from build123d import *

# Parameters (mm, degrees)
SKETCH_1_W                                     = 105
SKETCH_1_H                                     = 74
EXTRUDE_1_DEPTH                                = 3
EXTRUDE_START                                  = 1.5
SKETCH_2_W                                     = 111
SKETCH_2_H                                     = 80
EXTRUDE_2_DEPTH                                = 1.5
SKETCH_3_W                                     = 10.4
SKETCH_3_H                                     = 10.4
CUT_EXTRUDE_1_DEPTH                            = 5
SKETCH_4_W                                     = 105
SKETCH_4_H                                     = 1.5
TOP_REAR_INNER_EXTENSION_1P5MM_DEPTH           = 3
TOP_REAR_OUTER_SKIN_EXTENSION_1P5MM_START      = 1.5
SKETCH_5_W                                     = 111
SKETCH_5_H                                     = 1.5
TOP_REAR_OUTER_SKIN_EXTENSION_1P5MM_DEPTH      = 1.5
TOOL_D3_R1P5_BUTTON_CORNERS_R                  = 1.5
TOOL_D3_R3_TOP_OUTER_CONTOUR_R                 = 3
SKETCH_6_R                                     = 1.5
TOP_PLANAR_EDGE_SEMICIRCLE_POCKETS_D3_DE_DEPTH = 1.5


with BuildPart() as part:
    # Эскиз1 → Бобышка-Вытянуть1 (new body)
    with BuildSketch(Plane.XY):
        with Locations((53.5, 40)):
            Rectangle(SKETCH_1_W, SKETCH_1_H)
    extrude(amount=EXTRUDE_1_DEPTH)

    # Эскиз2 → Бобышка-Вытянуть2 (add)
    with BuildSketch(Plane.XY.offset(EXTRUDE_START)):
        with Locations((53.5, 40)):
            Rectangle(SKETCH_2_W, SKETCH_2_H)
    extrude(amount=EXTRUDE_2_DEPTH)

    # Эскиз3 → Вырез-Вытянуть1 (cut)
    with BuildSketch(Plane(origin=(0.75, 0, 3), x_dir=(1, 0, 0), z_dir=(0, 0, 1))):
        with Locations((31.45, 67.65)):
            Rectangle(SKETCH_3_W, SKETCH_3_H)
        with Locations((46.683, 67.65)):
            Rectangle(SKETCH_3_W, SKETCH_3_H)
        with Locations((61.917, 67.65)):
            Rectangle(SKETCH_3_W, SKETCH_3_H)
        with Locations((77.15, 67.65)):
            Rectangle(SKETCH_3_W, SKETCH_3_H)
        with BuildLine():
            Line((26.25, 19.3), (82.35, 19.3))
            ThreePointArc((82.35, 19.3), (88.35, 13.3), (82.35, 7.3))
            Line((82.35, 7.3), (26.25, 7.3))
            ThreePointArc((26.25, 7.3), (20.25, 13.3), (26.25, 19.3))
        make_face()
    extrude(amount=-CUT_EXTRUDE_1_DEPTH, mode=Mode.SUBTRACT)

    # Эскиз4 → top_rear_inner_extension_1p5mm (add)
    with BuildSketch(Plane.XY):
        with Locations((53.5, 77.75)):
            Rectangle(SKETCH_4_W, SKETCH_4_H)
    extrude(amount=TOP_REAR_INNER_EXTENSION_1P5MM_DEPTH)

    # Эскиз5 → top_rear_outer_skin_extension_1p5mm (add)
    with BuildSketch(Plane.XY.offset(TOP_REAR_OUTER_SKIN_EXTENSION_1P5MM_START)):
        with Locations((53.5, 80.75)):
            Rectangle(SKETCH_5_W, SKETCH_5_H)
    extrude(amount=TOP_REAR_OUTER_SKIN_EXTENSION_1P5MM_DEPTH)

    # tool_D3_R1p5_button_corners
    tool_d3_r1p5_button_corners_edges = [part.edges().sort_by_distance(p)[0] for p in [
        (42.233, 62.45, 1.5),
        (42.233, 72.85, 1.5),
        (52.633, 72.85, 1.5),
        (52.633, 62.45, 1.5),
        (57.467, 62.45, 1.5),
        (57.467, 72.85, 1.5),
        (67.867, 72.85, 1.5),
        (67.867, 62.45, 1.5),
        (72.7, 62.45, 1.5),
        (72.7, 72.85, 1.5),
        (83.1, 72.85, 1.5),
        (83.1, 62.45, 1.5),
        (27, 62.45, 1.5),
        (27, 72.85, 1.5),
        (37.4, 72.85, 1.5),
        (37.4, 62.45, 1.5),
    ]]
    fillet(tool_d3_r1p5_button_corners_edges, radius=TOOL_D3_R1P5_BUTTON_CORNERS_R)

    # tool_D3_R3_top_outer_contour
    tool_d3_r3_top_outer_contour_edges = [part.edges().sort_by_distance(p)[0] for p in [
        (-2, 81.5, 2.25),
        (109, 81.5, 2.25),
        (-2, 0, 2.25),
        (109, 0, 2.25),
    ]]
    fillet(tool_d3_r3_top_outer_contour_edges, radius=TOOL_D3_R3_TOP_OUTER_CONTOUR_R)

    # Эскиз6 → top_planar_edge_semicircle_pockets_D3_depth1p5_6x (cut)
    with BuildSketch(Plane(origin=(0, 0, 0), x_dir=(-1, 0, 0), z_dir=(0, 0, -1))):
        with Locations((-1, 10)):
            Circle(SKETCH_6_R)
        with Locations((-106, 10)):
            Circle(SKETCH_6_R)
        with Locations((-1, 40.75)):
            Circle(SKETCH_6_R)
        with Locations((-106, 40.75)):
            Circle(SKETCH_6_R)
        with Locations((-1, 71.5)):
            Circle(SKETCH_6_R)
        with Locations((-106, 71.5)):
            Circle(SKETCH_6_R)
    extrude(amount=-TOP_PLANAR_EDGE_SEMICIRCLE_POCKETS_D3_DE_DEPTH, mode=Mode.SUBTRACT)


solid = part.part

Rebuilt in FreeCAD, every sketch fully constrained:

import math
import FreeCAD as App
import Part
import Sketcher
from FreeCAD import Vector
Q = App.Units.Quantity


def edges_at(feature, points):
    """Names of the edges that pass closest to the given points."""
    edges = feature.Shape.Edges
    near = lambda p: min(range(len(edges)), key=lambda i: edges[i].distToShape(Part.Vertex(*p))[0])
    return sorted({f"Edge{near(p) + 1}" for p in points})


def add_polygon(sketch, points):
    """Adds a closed chain of lines whose ends are joined by coincident constraints."""
    first, n = sketch.GeometryCount, len(points)
    for a, b in zip(points, points[1:] + points[:1]):
        sketch.addGeometry(Part.LineSegment(App.Vector(*a, 0), App.Vector(*b, 0)), False)
    for i in range(n):
        sketch.addConstraint(Sketcher.Constraint("Coincident", first + i, 2, first + (i + 1) % n, 1))

doc = App.newDocument("Part")
body = doc.addObject("PartDesign::Body", "Body")

# Sketch on XY plane
sketch1 = body.newObject("Sketcher::SketchObject", "Sketch")
sketch1.AttachmentSupport = (doc.getObject("XY_Plane"), [""])
sketch1.MapMode = "FlatFace"
add_polygon(sketch1, [(1, 77), (1, 3), (106, 3), (106, 77)])  # lines 0-3
sketch1.addConstraint(Sketcher.Constraint("Vertical", 0))
sketch1.addConstraint(Sketcher.Constraint("Horizontal", 1))
sketch1.addConstraint(Sketcher.Constraint("Vertical", 2))
sketch1.addConstraint(Sketcher.Constraint("Horizontal", 3))
sketch1.addConstraint(Sketcher.Constraint("DistanceX", 1, 1, 1, 2, Q("105 mm")))
sketch1.addConstraint(Sketcher.Constraint("DistanceY", 0, 2, 0, 1, Q("74 mm")))
sketch1.addConstraint(Sketcher.Constraint("DistanceX", -1, 1, 0, 2, Q("1 mm")))
sketch1.addConstraint(Sketcher.Constraint("DistanceY", -1, 1, 0, 2, Q("3 mm")))
pad1 = body.newObject("PartDesign::Pad", "Pad")
pad1.Profile = sketch1
pad1.Length = 3

# Sketch on XY plane
sketch2 = body.newObject("Sketcher::SketchObject", "Sketch001")
sketch2.AttachmentSupport = (doc.getObject("XY_Plane"), [""])
sketch2.MapMode = "FlatFace"
sketch2.AttachmentOffset = App.Placement(Vector(0, 0, 1.5), App.Rotation())
add_polygon(sketch2, [(-2, 80), (-2, 0), (109, 0), (109, 80)])  # lines 0-3
sketch2.addConstraint(Sketcher.Constraint("Vertical", 0))
sketch2.addConstraint(Sketcher.Constraint("Horizontal", 1))
sketch2.addConstraint(Sketcher.Constraint("Vertical", 2))
sketch2.addConstraint(Sketcher.Constraint("Horizontal", 3))
sketch2.addConstraint(Sketcher.Constraint("PointOnObject", 0, 2, -1))
sketch2.addConstraint(Sketcher.Constraint("DistanceX", 1, 1, 1, 2, Q("111 mm")))
sketch2.addConstraint(Sketcher.Constraint("DistanceY", 0, 2, 0, 1, Q("80 mm")))
sketch2.addConstraint(Sketcher.Constraint("DistanceX", 0, 2, -1, 1, Q("2 mm")))
pad2 = body.newObject("PartDesign::Pad", "Pad001")
pad2.Profile = sketch2
pad2.Length = 1.5

# Sketch on XY plane
sketch3 = body.newObject("Sketcher::SketchObject", "Sketch002")
sketch3.AttachmentSupport = (doc.getObject("XY_Plane"), [""])
sketch3.MapMode = "FlatFace"
sketch3.AttachmentOffset = App.Placement(Vector(0, 0, 3), App.Rotation())
add_polygon(sketch3, [(27, 73), (27, 62), (37, 62), (37, 73)])  # lines 0-3
add_polygon(sketch3, [(42, 73), (42, 62), (53, 62), (53, 73)])  # lines 4-7
add_polygon(sketch3, [(57, 73), (57, 62), (68, 62), (68, 73)])  # lines 8-11
add_polygon(sketch3, [(73, 73), (73, 62), (83, 62), (83, 73)])  # lines 12-15
sketch3.addGeometry(Part.LineSegment(Vector(83, 19, 0), Vector(27, 19, 0)), False)  # 16
sketch3.addGeometry(Part.ArcOfCircle(Part.Circle(Vector(27, 13, 0), Vector(0, 0, 1), 6), math.radians(90), math.radians(270)), False)  # 17
sketch3.addGeometry(Part.LineSegment(Vector(27, 7, 0), Vector(83, 7, 0)), False)  # 18
sketch3.addGeometry(Part.ArcOfCircle(Part.Circle(Vector(83, 13, 0), Vector(0, 0, 1), 6), math.radians(-90), math.radians(90)), False)  # 19
sketch3.addConstraint(Sketcher.Constraint("Tangent", 16, 2, 17, 1))
sketch3.addConstraint(Sketcher.Constraint("Tangent", 17, 2, 18, 1))
sketch3.addConstraint(Sketcher.Constraint("Tangent", 18, 2, 19, 1))
sketch3.addConstraint(Sketcher.Constraint("Tangent", 19, 2, 16, 1))
sketch3.addConstraint(Sketcher.Constraint("Vertical", 0))
sketch3.addConstraint(Sketcher.Constraint("Horizontal", 1))
sketch3.addConstraint(Sketcher.Constraint("Vertical", 2))
sketch3.addConstraint(Sketcher.Constraint("Horizontal", 3))
sketch3.addConstraint(Sketcher.Constraint("Vertical", 4))
sketch3.addConstraint(Sketcher.Constraint("Horizontal", 5))
sketch3.addConstraint(Sketcher.Constraint("Vertical", 6))
sketch3.addConstraint(Sketcher.Constraint("Horizontal", 7))
sketch3.addConstraint(Sketcher.Constraint("Vertical", 8))
sketch3.addConstraint(Sketcher.Constraint("Horizontal", 9))
sketch3.addConstraint(Sketcher.Constraint("Vertical", 10))
sketch3.addConstraint(Sketcher.Constraint("Horizontal", 11))
sketch3.addConstraint(Sketcher.Constraint("Vertical", 12))
sketch3.addConstraint(Sketcher.Constraint("Horizontal", 13))
sketch3.addConstraint(Sketcher.Constraint("Vertical", 14))
sketch3.addConstraint(Sketcher.Constraint("Horizontal", 15))
sketch3.addConstraint(Sketcher.Constraint("Horizontal", 16))
sketch3.addConstraint(Sketcher.Constraint("Horizontal", 18))
sketch3.addConstraint(Sketcher.Constraint("Horizontal", 1, 2, 4, 2))
sketch3.addConstraint(Sketcher.Constraint("Horizontal", 3, 2, 6, 2))
sketch3.addConstraint(Sketcher.Constraint("Horizontal", 5, 2, 8, 2))
sketch3.addConstraint(Sketcher.Constraint("Horizontal", 7, 2, 10, 2))
sketch3.addConstraint(Sketcher.Constraint("Horizontal", 9, 2, 12, 2))
sketch3.addConstraint(Sketcher.Constraint("Horizontal", 11, 2, 14, 2))
sketch3.addConstraint(Sketcher.Constraint("Vertical", 17, 3, 0, 2))
sketch3.addConstraint(Sketcher.Constraint("Vertical", 19, 3, 13, 2))
sketch3.addConstraint(Sketcher.Constraint("Equal", 3, 5))
sketch3.addConstraint(Sketcher.Constraint("Equal", 7, 9))
sketch3.addConstraint(Sketcher.Constraint("Equal", 11, 13))
sketch3.addConstraint(Sketcher.Constraint("Equal", 15, 0))
sketch3.addConstraint(Sketcher.Constraint("Radius", 17, Q("6 mm")))
sketch3.addConstraint(Sketcher.Constraint("DistanceX", 1, 1, 1, 2, Q("10.4 mm")))
sketch3.addConstraint(Sketcher.Constraint("DistanceX", 16, 2, 16, 1, Q("56.1 mm")))
sketch3.addConstraint(Sketcher.Constraint("DistanceX", -1, 1, 17, 3, Q("27 mm")))
sketch3.addConstraint(Sketcher.Constraint("DistanceY", -1, 1, 17, 3, Q("13.3 mm")))
sketch3.addConstraint(Sketcher.Constraint("DistanceY", -1, 1, 0, 2, Q("62.45 mm")))
sketch3.addConstraint(Sketcher.Constraint("DistanceX", -1, 1, 4, 2, Q("42.233 mm")))
sketch3.addConstraint(Sketcher.Constraint("DistanceX", -1, 1, 8, 2, Q("57.467 mm")))
pocket1 = body.newObject("PartDesign::Pocket", "Pocket")
pocket1.Profile = sketch3
pocket1.Length = 5

# Sketch on XY plane
sketch4 = body.newObject("Sketcher::SketchObject", "Sketch003")
sketch4.AttachmentSupport = (doc.getObject("XY_Plane"), [""])
sketch4.MapMode = "FlatFace"
add_polygon(sketch4, [(1, 78.5), (1, 77), (106, 77), (106, 78.5)])  # lines 0-3
sketch4.addConstraint(Sketcher.Constraint("Vertical", 0))
sketch4.addConstraint(Sketcher.Constraint("Horizontal", 1))
sketch4.addConstraint(Sketcher.Constraint("Vertical", 2))
sketch4.addConstraint(Sketcher.Constraint("Horizontal", 3))
sketch4.addConstraint(Sketcher.Constraint("DistanceX", 1, 1, 1, 2, Q("105 mm")))
sketch4.addConstraint(Sketcher.Constraint("DistanceY", 0, 2, 0, 1, Q("1.5 mm")))
sketch4.addConstraint(Sketcher.Constraint("DistanceX", -1, 1, 0, 2, Q("1 mm")))
sketch4.addConstraint(Sketcher.Constraint("DistanceY", -1, 1, 0, 2, Q("77 mm")))
pad3 = body.newObject("PartDesign::Pad", "Pad002")
pad3.Profile = sketch4
pad3.Length = 3

# Sketch on XY plane
sketch5 = body.newObject("Sketcher::SketchObject", "Sketch004")
sketch5.AttachmentSupport = (doc.getObject("XY_Plane"), [""])
sketch5.MapMode = "FlatFace"
sketch5.AttachmentOffset = App.Placement(Vector(0, 0, 1.5), App.Rotation())
add_polygon(sketch5, [(-2, 81.5), (-2, 80), (109, 80), (109, 81.5)])  # lines 0-3
sketch5.addConstraint(Sketcher.Constraint("Vertical", 0))
sketch5.addConstraint(Sketcher.Constraint("Horizontal", 1))
sketch5.addConstraint(Sketcher.Constraint("Vertical", 2))
sketch5.addConstraint(Sketcher.Constraint("Horizontal", 3))
sketch5.addConstraint(Sketcher.Constraint("DistanceX", 1, 1, 1, 2, Q("111 mm")))
sketch5.addConstraint(Sketcher.Constraint("DistanceY", 0, 2, 0, 1, Q("1.5 mm")))
sketch5.addConstraint(Sketcher.Constraint("DistanceX", 0, 2, -1, 1, Q("2 mm")))
sketch5.addConstraint(Sketcher.Constraint("DistanceY", -1, 1, 0, 2, Q("80 mm")))
pad4 = body.newObject("PartDesign::Pad", "Pad003")
pad4.Profile = sketch5
pad4.Length = 1.5
doc.recompute()

fillet = body.newObject("PartDesign::Fillet", "Fillet")
fillet.Base = (pad4, edges_at(pad4, [
    (42.233, 62.45, 1.5),
    (42.233, 72.85, 1.5),
    (52.633, 72.85, 1.5),
    (52.633, 62.45, 1.5),
    (57.467, 62.45, 1.5),
    (57.467, 72.85, 1.5),
    (67.867, 72.85, 1.5),
    (67.867, 62.45, 1.5),
    (72.7, 62.45, 1.5),
    (72.7, 72.85, 1.5),
    (83.1, 72.85, 1.5),
    (83.1, 62.45, 1.5),
    (27, 62.45, 1.5),
    (27, 72.85, 1.5),
    (37.4, 72.85, 1.5),
    (37.4, 62.45, 1.5),
]))
fillet.Radius = 1.5
doc.recompute()

fillet2 = body.newObject("PartDesign::Fillet", "Fillet001")
fillet2.Base = (fillet, edges_at(fillet, [
    (-2, 81.5, 2.25),
    (109, 81.5, 2.25),
    (-2, 0, 2.25),
    (109, 0, 2.25),
]))
fillet2.Radius = 3

# Sketch on XY plane
sketch6 = body.newObject("Sketcher::SketchObject", "Sketch005")
sketch6.AttachmentSupport = (doc.getObject("XY_Plane"), [""])
sketch6.MapMode = "FlatFace"
sketch6.addGeometry(Part.Circle(Vector(1, 10, 0), Vector(0, 0, 1), 1.5), False)
sketch6.addGeometry(Part.Circle(Vector(106, 10, 0), Vector(0, 0, 1), 1.5), False)
sketch6.addGeometry(Part.Circle(Vector(1, 40.8, 0), Vector(0, 0, 1), 1.5), False)
sketch6.addGeometry(Part.Circle(Vector(106, 40.8, 0), Vector(0, 0, 1), 1.5), False)
sketch6.addGeometry(Part.Circle(Vector(1, 71.5, 0), Vector(0, 0, 1), 1.5), False)
sketch6.addGeometry(Part.Circle(Vector(106, 71.5, 0), Vector(0, 0, 1), 1.5), False)
sketch6.addConstraint(Sketcher.Constraint("Equal", 0, 1))
sketch6.addConstraint(Sketcher.Constraint("Equal", 1, 2))
sketch6.addConstraint(Sketcher.Constraint("Equal", 2, 3))
sketch6.addConstraint(Sketcher.Constraint("Equal", 3, 4))
sketch6.addConstraint(Sketcher.Constraint("Equal", 4, 5))
sketch6.addConstraint(Sketcher.Constraint("Horizontal", 0, 3, 1, 3))
sketch6.addConstraint(Sketcher.Constraint("Horizontal", 2, 3, 3, 3))
sketch6.addConstraint(Sketcher.Constraint("Horizontal", 4, 3, 5, 3))
sketch6.addConstraint(Sketcher.Constraint("Vertical", 0, 3, 2, 3))
sketch6.addConstraint(Sketcher.Constraint("Vertical", 1, 3, 3, 3))
sketch6.addConstraint(Sketcher.Constraint("Vertical", 2, 3, 4, 3))
sketch6.addConstraint(Sketcher.Constraint("Vertical", 3, 3, 5, 3))
sketch6.addConstraint(Sketcher.Constraint("Diameter", 0, Q("3 mm")))
sketch6.addConstraint(Sketcher.Constraint("DistanceX", -1, 1, 0, 3, Q("1 mm")))
sketch6.addConstraint(Sketcher.Constraint("DistanceY", -1, 1, 0, 3, Q("10 mm")))
sketch6.addConstraint(Sketcher.Constraint("DistanceX", -1, 1, 1, 3, Q("106 mm")))
sketch6.addConstraint(Sketcher.Constraint("DistanceY", -1, 1, 4, 3, Q("71.5 mm")))
sketch6.addConstraint(Sketcher.Constraint("DistanceY", -1, 1, 2, 3, Q("40.75 mm")))
pocket2 = body.newObject("PartDesign::Pocket", "Pocket001")
pocket2.Profile = sketch6
pocket2.Length = 1.5
pocket2.Reversed = True

doc.recompute()
